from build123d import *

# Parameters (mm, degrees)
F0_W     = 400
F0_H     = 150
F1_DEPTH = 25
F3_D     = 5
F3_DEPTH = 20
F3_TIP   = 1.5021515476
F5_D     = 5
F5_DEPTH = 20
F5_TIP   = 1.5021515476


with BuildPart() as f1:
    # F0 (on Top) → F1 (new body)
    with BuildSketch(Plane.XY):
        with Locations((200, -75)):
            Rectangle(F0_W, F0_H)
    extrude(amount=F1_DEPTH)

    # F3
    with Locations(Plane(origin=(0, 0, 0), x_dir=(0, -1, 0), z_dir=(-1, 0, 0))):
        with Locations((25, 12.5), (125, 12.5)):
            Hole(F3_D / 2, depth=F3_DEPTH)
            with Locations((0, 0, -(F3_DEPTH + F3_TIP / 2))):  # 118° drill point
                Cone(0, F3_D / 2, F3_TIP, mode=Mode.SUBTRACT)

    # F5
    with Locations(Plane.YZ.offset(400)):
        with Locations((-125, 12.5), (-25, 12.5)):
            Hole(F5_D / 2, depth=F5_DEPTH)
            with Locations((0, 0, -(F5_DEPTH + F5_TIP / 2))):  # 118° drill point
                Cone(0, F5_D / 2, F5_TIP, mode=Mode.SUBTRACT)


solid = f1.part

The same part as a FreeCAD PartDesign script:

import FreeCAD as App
import Part
import Sketcher
from FreeCAD import Vector
Q = App.Units.Quantity

doc = App.newDocument("Part")
body = doc.addObject("PartDesign::Body", "Body")

# Sketch on XY plane
sketch1 = body.newObject("Sketcher::SketchObject", "Sketch")
sketch1.AttachmentSupport = (doc.getObject("XY_Plane"), [""])
sketch1.MapMode = "FlatFace"
sketch1.addGeometry([
    Part.LineSegment(Vector(0, 0, 0), Vector(0, -150, 0)),
    Part.LineSegment(Vector(0, -150, 0), Vector(400, -150, 0)),
    Part.LineSegment(Vector(400, -150, 0), Vector(400, 0, 0)),
    Part.LineSegment(Vector(400, 0, 0), Vector(0, 0, 0)),
], False)
sketch1.addConstraint([
    Sketcher.Constraint("Coincident", 0, 2, 1, 1),
    Sketcher.Constraint("Coincident", 1, 2, 2, 1),
    Sketcher.Constraint("Coincident", 2, 2, 3, 1),
    Sketcher.Constraint("Coincident", 3, 2, 0, 1),
    Sketcher.Constraint("Vertical", 0),
    Sketcher.Constraint("Horizontal", 1),
    Sketcher.Constraint("Vertical", 2),
    Sketcher.Constraint("Horizontal", 3),
    Sketcher.Constraint("Coincident", 3, 2, -1, 1),
    Sketcher.Constraint("DistanceX", 1, 1, 1, 2, Q("400 mm")),
    Sketcher.Constraint("DistanceY", 0, 2, 0, 1, Q("150 mm")),
])
pad1 = body.newObject("PartDesign::Pad", "Pad")
pad1.Profile = sketch1
pad1.Length = 25

# Sketch on YZ plane
sketch2 = body.newObject("Sketcher::SketchObject", "Sketch001")
sketch2.AttachmentSupport = (doc.getObject("YZ_Plane"), [""])
sketch2.MapMode = "FlatFace"
sketch2.addGeometry([
    Part.Circle(Vector(-25, 12.5, 0), Vector(0, 0, 1), 2.5),
    Part.Circle(Vector(-125, 12.5, 0), Vector(0, 0, 1), 2.5),
], False)
sketch2.addConstraint([
    Sketcher.Constraint("Equal", 0, 1),
    Sketcher.Constraint("Horizontal", 0, 3, 1, 3),
    Sketcher.Constraint("Diameter", 0, Q("5 mm")),
    Sketcher.Constraint("DistanceX", 0, 3, -1, 1, Q("25 mm")),
    Sketcher.Constraint("DistanceX", 1, 3, -1, 1, Q("125 mm")),
    Sketcher.Constraint("DistanceY", -1, 1, 0, 3, Q("12.5 mm")),
])
doc.recompute()
hole = body.newObject("PartDesign::Hole", "Hole")
hole.Profile = sketch2
hole.ThreadType = "None"
hole.Diameter = 5
hole.DepthType = "Dimension"
hole.Depth = 20
hole.DrillPoint = "Angled"
hole.DrillPointAngle = 118
hole.Reversed = True

# Sketch on YZ plane
sketch3 = body.newObject("Sketcher::SketchObject", "Sketch002")
sketch3.AttachmentSupport = (doc.getObject("YZ_Plane"), [""])
sketch3.MapMode = "FlatFace"
sketch3.AttachmentOffset = App.Placement(Vector(0, 0, 400), App.Rotation())
sketch3.addGeometry([
    Part.Circle(Vector(-125, 12.5, 0), Vector(0, 0, 1), 2.5),
    Part.Circle(Vector(-25, 12.5, 0), Vector(0, 0, 1), 2.5),
], False)
sketch3.addConstraint([
    Sketcher.Constraint("Equal", 0, 1),
    Sketcher.Constraint("Horizontal", 0, 3, 1, 3),
    Sketcher.Constraint("Diameter", 0, Q("5 mm")),
    Sketcher.Constraint("DistanceX", 0, 3, -1, 1, Q("125 mm")),
    Sketcher.Constraint("DistanceX", 1, 3, -1, 1, Q("25 mm")),
    Sketcher.Constraint("DistanceY", -1, 1, 0, 3, Q("12.5 mm")),
])
doc.recompute()
hole2 = body.newObject("PartDesign::Hole", "Hole001")
hole2.Profile = sketch3
hole2.ThreadType = "None"
hole2.Diameter = 5
hole2.DepthType = "Dimension"
hole2.Depth = 20
hole2.DrillPoint = "Angled"
hole2.DrillPointAngle = 118

doc.recompute()
